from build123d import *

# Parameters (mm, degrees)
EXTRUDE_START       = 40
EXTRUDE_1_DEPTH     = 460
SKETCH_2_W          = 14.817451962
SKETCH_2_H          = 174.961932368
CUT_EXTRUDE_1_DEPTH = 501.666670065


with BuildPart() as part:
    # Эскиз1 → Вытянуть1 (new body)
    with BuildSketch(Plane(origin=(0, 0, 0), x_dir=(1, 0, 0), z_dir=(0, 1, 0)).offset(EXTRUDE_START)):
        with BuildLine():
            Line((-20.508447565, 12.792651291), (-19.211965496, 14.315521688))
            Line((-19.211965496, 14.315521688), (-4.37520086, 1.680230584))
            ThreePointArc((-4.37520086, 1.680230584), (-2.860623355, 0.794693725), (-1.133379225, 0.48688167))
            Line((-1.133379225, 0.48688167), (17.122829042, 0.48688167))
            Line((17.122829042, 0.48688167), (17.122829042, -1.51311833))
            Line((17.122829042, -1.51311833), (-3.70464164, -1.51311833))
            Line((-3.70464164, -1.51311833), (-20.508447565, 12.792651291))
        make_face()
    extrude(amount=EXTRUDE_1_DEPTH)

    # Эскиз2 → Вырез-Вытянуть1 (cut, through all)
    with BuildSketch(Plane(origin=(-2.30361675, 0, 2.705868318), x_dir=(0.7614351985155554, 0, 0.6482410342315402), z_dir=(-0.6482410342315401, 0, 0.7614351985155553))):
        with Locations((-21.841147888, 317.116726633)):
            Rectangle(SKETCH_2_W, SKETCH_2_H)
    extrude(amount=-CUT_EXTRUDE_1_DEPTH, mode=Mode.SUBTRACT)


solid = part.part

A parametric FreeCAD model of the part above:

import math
import FreeCAD as App
import Part
import Sketcher
from FreeCAD import Vector

doc = App.newDocument("Part")
body = doc.addObject("PartDesign::Body", "Body")

# Sketch on XZ plane
sketch1 = body.newObject("Sketcher::SketchObject", "Sketch")
sketch1.AttachmentSupport = (doc.getObject("XZ_Plane"), [""])
sketch1.MapMode = "FlatFace"
sketch1.AttachmentOffset = App.Placement(Vector(0, 0, -40), App.Rotation())
sketch1.addGeometry([
    Part.LineSegment(Vector(-19.211965, -14.315522, 0), Vector(-20.508448, -12.792651, 0)),  # 0
    Part.LineSegment(Vector(-20.508448, -12.792651, 0), Vector(-3.704642, 1.513118, 0)),  # 1
    Part.LineSegment(Vector(-3.704642, 1.513118, 0), Vector(17.122829, 1.513118, 0)),  # 2
    Part.LineSegment(Vector(17.122829, 1.513118, 0), Vector(17.122829, -0.486882, 0)),  # 3
    Part.LineSegment(Vector(17.122829, -0.486882, 0), Vector(-1.133379, -0.486882, 0)),  # 4
    Part.ArcOfCircle(Part.Circle(Vector(-1.133379, -5.486882, 0), Vector(0, 0, 1), 5), math.radians(90), math.radians(130.418392)),  # 5
    Part.LineSegment(Vector(-4.375201, -1.680231, 0), Vector(-19.211965, -14.315522, 0)),  # 6
], False)
sketch1.addConstraint([
    Sketcher.Constraint("Coincident", 0, 2, 1, 1),
    Sketcher.Constraint("Coincident", 1, 2, 2, 1),
    Sketcher.Constraint("Coincident", 2, 2, 3, 1),
    Sketcher.Constraint("Coincident", 3, 2, 4, 1),
    Sketcher.Constraint("Tangent", 4, 2, 5, 1),
    Sketcher.Constraint("Tangent", 5, 2, 6, 1),
    Sketcher.Constraint("Coincident", 6, 2, 0, 1),
    Sketcher.Constraint("Horizontal", 2),
    Sketcher.Constraint("Vertical", 3),
    Sketcher.Constraint("Horizontal", 4),
    Sketcher.Constraint("Perpendicular", 0, 1),
    Sketcher.Constraint("Radius", 5, 5.0),
    Sketcher.Constraint("DistanceY", 3, 2, 3, 1, 2.0),
    Sketcher.Constraint("Distance", 0, 2.0),
    Sketcher.Constraint("DistanceX", 2, 1, 2, 2, 20.827471),
    Sketcher.Constraint("DistanceX", 4, 2, 4, 1, 18.256208),
    Sketcher.Constraint("DistanceX", 5, 2, -1, 1, 4.375201),
    Sketcher.Constraint("Distance", 6, 19.487949),
    Sketcher.Constraint("DistanceX", 5, 3, -1, 1, 1.133379),
    Sketcher.Constraint("DistanceY", 5, 3, -1, 1, 5.486882),
])
pad1 = body.newObject("PartDesign::Pad", "Pad")
pad1.Profile = sketch1
pad1.Length = 460
pad1.Reversed = True

# Sketch on an angled plane
sketch2 = body.newObject("Sketcher::SketchObject", "Sketch001")
sketch2.Placement = App.Placement(Vector(-2.303617, 0, 2.705868), App.Rotation(Vector(0.761435199, 0, 0.648241034), Vector(0, 1, 0), Vector(-0.648241034, 0, 0.761435199), "ZXY"))
sketch2.addGeometry([
    Part.LineSegment(Vector(-29.249874, 404.597693, 0), Vector(-29.249874, 229.635761, 0)),
    Part.LineSegment(Vector(-29.249874, 229.635761, 0), Vector(-14.432422, 229.635761, 0)),
    Part.LineSegment(Vector(-14.432422, 229.635761, 0), Vector(-14.432422, 404.597693, 0)),
    Part.LineSegment(Vector(-14.432422, 404.597693, 0), Vector(-29.249874, 404.597693, 0)),
], False)
sketch2.addConstraint([
    Sketcher.Constraint("Coincident", 0, 2, 1, 1),
    Sketcher.Constraint("Coincident", 1, 2, 2, 1),
    Sketcher.Constraint("Coincident", 2, 2, 3, 1),
    Sketcher.Constraint("Coincident", 3, 2, 0, 1),
    Sketcher.Constraint("Vertical", 0),
    Sketcher.Constraint("Horizontal", 1),
    Sketcher.Constraint("Vertical", 2),
    Sketcher.Constraint("Horizontal", 3),
    Sketcher.Constraint("DistanceX", 1, 1, 1, 2, 14.817452),
    Sketcher.Constraint("DistanceY", 0, 2, 0, 1, 174.961933),
    Sketcher.Constraint("DistanceY", -1, 1, 0, 2, 229.635761),
    Sketcher.Constraint("DistanceX", 1, 2, -1, 1, 14.432422),
])
pocket1 = body.newObject("PartDesign::Pocket", "Pocket")
pocket1.Profile = sketch2
pocket1.Type = "ThroughAll"

doc.recompute()
